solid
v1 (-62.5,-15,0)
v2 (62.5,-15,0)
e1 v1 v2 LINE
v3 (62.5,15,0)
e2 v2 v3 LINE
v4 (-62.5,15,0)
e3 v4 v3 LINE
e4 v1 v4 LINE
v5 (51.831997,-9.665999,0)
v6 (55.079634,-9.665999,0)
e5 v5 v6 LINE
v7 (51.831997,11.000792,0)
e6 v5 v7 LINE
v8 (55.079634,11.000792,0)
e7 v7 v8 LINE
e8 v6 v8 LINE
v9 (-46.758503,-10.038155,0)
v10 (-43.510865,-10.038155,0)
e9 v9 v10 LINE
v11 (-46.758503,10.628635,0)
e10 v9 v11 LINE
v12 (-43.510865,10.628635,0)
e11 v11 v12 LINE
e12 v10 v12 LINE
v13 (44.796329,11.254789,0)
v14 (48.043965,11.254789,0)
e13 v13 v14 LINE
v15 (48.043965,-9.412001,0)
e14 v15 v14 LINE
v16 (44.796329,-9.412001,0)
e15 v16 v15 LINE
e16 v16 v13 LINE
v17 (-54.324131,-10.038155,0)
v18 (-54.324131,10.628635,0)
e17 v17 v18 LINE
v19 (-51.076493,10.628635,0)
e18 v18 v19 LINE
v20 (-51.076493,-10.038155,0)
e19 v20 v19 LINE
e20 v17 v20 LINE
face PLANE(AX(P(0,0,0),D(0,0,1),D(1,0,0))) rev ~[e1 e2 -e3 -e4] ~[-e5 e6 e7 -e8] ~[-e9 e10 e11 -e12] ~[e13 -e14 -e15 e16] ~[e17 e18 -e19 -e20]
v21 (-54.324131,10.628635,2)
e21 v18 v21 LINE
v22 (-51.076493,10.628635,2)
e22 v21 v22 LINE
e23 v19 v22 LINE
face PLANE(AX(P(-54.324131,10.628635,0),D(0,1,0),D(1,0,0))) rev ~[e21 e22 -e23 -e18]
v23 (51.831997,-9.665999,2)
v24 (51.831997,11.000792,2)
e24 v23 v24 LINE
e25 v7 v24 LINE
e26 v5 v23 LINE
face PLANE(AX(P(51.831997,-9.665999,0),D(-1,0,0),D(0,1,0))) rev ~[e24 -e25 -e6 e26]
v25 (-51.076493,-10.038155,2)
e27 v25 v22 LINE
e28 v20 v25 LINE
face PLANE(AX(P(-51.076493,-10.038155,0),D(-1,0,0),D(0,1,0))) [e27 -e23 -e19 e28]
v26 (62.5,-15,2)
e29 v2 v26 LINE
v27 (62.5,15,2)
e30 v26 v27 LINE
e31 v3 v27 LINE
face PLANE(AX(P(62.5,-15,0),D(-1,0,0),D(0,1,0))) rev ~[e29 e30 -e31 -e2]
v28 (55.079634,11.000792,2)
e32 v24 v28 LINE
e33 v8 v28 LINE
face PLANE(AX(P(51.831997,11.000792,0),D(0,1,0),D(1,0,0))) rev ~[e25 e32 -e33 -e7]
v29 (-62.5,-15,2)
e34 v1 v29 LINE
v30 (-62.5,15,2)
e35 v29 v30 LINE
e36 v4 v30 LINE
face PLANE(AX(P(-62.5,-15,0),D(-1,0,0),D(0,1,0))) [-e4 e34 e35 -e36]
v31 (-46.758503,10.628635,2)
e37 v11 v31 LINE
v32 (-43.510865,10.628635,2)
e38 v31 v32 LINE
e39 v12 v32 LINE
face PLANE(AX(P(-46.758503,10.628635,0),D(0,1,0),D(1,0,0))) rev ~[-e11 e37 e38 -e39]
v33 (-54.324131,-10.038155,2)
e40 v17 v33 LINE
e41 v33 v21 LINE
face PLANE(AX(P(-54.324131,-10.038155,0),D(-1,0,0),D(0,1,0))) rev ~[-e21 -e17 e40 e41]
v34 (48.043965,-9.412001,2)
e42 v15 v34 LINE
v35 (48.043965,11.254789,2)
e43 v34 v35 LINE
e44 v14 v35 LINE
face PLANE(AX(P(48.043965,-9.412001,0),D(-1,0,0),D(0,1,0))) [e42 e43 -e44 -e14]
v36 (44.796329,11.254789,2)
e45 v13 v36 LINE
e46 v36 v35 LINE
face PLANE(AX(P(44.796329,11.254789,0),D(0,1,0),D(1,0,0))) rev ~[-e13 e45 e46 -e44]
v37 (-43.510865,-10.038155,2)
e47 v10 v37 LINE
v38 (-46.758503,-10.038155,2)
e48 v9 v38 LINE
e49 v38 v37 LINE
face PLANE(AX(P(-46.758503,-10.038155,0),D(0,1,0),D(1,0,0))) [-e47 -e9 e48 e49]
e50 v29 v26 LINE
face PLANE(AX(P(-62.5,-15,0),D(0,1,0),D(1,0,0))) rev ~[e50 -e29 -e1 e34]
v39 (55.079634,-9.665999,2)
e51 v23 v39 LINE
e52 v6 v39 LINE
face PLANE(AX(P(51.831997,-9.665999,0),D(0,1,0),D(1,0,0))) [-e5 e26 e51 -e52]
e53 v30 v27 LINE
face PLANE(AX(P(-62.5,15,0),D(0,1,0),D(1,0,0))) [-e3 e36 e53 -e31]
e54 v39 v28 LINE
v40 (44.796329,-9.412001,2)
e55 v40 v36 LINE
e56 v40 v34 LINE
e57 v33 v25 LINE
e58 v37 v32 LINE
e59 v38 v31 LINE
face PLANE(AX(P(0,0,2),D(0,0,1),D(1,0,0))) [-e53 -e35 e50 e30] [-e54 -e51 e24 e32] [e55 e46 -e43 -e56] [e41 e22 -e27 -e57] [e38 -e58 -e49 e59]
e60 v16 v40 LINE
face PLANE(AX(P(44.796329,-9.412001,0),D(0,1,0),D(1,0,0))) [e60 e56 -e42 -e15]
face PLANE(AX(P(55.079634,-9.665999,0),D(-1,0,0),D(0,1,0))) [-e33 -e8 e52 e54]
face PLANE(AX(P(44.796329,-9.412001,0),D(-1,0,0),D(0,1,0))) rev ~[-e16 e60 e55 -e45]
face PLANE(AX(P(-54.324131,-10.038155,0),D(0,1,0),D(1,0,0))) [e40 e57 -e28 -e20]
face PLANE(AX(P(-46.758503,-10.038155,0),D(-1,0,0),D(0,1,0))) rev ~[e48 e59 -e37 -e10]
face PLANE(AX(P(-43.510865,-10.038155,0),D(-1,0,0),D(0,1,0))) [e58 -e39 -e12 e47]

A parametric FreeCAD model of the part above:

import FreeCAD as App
import Part
import Sketcher

V = App.Vector
Q = App.Units.Quantity


def add_polygon(sketch, points):
    """Adds a closed chain of lines whose ends are joined by coincident constraints."""
    first, n = sketch.GeometryCount, len(points)
    for a, b in zip(points, points[1:] + points[:1]):
        sketch.addGeometry(Part.LineSegment(App.Vector(*a, 0), App.Vector(*b, 0)), False)
    for i in range(n):
        sketch.addConstraint(Sketcher.Constraint("Coincident", first + i, 2, first + (i + 1) % n, 1))

doc = App.newDocument("Part")
body = doc.addObject("PartDesign::Body", "Body")

# Sketch on XY plane
sketch1 = body.newObject("Sketcher::SketchObject", "Sketch")
sketch1.AttachmentSupport = (doc.getObject("XY_Plane"), [""])
sketch1.MapMode = "FlatFace"
add_polygon(sketch1, [(-62.5, 15), (-62.5, -15), (62.5, -15), (62.5, 15)])  # lines 0-3
add_polygon(sketch1, [(-51.076493, -10.038155), (-54.324131, -10.038155), (-54.324131, 10.628635), (-51.076493, 10.628635)])  # lines 4-7
add_polygon(sketch1, [(-43.510865, -10.038155), (-46.758503, -10.038155), (-46.758503, 10.628635), (-43.510865, 10.628635)])  # lines 8-11
add_polygon(sketch1, [(48.043965, -9.412001), (44.796329, -9.412001), (44.796329, 11.254789), (48.043965, 11.254789)])  # lines 12-15
add_polygon(sketch1, [(55.079634, -9.665999), (51.831997, -9.665999), (51.831997, 11.000792), (55.079634, 11.000792)])  # lines 16-19
sketch1.addConstraint(Sketcher.Constraint("Vertical", 0))
sketch1.addConstraint(Sketcher.Constraint("Horizontal", 1))
sketch1.addConstraint(Sketcher.Constraint("Vertical", 2))
sketch1.addConstraint(Sketcher.Constraint("Horizontal", 3))
sketch1.addConstraint(Sketcher.Constraint("Horizontal", 4))
sketch1.addConstraint(Sketcher.Constraint("Vertical", 5))
sketch1.addConstraint(Sketcher.Constraint("Horizontal", 6))
sketch1.addConstraint(Sketcher.Constraint("Vertical", 7))
sketch1.addConstraint(Sketcher.Constraint("Horizontal", 8))
sketch1.addConstraint(Sketcher.Constraint("Vertical", 9))
sketch1.addConstraint(Sketcher.Constraint("Horizontal", 10))
sketch1.addConstraint(Sketcher.Constraint("Vertical", 11))
sketch1.addConstraint(Sketcher.Constraint("Horizontal", 12))
sketch1.addConstraint(Sketcher.Constraint("Vertical", 13))
sketch1.addConstraint(Sketcher.Constraint("Horizontal", 14))
sketch1.addConstraint(Sketcher.Constraint("Vertical", 15))
sketch1.addConstraint(Sketcher.Constraint("Horizontal", 16))
sketch1.addConstraint(Sketcher.Constraint("Vertical", 17))
sketch1.addConstraint(Sketcher.Constraint("Horizontal", 18))
sketch1.addConstraint(Sketcher.Constraint("Vertical", 19))
sketch1.addConstraint(Sketcher.Constraint("Symmetric", 0, 2, 2, 2, -1, 1))
sketch1.addConstraint(Sketcher.Constraint("Horizontal", 7, 2, 8, 2))
sketch1.addConstraint(Sketcher.Constraint("Horizontal", 6, 2, 9, 2))
sketch1.addConstraint(Sketcher.Constraint("Equal", 6, 8))
sketch1.addConstraint(Sketcher.Constraint("Equal", 10, 12))
sketch1.addConstraint(Sketcher.Constraint("Equal", 14, 16))
sketch1.addConstraint(Sketcher.Constraint("Equal", 11, 13))
sketch1.addConstraint(Sketcher.Constraint("Equal", 15, 17))
sketch1.addConstraint(Sketcher.Constraint("DistanceX", 1, 1, 1, 2, Q("125 mm")))
sketch1.addConstraint(Sketcher.Constraint("DistanceY", 0, 2, 0, 1, Q("30 mm")))
sketch1.addConstraint(Sketcher.Constraint("DistanceY", 12, 2, -1, 1, Q("9.412001 mm")))
sketch1.addConstraint(Sketcher.Constraint("DistanceY", 16, 2, -1, 1, Q("9.665999 mm")))
sketch1.addConstraint(Sketcher.Constraint("DistanceY", 5, 1, 5, 2, Q("20.66679 mm")))
sketch1.addConstraint(Sketcher.Constraint("DistanceX", 4, 2, 4, 1, Q("3.247637 mm")))
sketch1.addConstraint(Sketcher.Constraint("DistanceX", 4, 2, -1, 1, Q("54.324131 mm")))
sketch1.addConstraint(Sketcher.Constraint("DistanceX", -1, 1, 12, 2, Q("44.796329 mm")))
sketch1.addConstraint(Sketcher.Constraint("DistanceX", 7, 2, 8, 2, Q("4.317991 mm")))
sketch1.addConstraint(Sketcher.Constraint("DistanceX", 12, 2, 16, 2, Q("7.035669 mm")))
sketch1.addConstraint(Sketcher.Constraint("DistanceY", 4, 2, -1, 1, Q("10.038155 mm")))
pad1 = body.newObject("PartDesign::Pad", "Pad")
pad1.Profile = sketch1
pad1.Length = 2

doc.recompute()
